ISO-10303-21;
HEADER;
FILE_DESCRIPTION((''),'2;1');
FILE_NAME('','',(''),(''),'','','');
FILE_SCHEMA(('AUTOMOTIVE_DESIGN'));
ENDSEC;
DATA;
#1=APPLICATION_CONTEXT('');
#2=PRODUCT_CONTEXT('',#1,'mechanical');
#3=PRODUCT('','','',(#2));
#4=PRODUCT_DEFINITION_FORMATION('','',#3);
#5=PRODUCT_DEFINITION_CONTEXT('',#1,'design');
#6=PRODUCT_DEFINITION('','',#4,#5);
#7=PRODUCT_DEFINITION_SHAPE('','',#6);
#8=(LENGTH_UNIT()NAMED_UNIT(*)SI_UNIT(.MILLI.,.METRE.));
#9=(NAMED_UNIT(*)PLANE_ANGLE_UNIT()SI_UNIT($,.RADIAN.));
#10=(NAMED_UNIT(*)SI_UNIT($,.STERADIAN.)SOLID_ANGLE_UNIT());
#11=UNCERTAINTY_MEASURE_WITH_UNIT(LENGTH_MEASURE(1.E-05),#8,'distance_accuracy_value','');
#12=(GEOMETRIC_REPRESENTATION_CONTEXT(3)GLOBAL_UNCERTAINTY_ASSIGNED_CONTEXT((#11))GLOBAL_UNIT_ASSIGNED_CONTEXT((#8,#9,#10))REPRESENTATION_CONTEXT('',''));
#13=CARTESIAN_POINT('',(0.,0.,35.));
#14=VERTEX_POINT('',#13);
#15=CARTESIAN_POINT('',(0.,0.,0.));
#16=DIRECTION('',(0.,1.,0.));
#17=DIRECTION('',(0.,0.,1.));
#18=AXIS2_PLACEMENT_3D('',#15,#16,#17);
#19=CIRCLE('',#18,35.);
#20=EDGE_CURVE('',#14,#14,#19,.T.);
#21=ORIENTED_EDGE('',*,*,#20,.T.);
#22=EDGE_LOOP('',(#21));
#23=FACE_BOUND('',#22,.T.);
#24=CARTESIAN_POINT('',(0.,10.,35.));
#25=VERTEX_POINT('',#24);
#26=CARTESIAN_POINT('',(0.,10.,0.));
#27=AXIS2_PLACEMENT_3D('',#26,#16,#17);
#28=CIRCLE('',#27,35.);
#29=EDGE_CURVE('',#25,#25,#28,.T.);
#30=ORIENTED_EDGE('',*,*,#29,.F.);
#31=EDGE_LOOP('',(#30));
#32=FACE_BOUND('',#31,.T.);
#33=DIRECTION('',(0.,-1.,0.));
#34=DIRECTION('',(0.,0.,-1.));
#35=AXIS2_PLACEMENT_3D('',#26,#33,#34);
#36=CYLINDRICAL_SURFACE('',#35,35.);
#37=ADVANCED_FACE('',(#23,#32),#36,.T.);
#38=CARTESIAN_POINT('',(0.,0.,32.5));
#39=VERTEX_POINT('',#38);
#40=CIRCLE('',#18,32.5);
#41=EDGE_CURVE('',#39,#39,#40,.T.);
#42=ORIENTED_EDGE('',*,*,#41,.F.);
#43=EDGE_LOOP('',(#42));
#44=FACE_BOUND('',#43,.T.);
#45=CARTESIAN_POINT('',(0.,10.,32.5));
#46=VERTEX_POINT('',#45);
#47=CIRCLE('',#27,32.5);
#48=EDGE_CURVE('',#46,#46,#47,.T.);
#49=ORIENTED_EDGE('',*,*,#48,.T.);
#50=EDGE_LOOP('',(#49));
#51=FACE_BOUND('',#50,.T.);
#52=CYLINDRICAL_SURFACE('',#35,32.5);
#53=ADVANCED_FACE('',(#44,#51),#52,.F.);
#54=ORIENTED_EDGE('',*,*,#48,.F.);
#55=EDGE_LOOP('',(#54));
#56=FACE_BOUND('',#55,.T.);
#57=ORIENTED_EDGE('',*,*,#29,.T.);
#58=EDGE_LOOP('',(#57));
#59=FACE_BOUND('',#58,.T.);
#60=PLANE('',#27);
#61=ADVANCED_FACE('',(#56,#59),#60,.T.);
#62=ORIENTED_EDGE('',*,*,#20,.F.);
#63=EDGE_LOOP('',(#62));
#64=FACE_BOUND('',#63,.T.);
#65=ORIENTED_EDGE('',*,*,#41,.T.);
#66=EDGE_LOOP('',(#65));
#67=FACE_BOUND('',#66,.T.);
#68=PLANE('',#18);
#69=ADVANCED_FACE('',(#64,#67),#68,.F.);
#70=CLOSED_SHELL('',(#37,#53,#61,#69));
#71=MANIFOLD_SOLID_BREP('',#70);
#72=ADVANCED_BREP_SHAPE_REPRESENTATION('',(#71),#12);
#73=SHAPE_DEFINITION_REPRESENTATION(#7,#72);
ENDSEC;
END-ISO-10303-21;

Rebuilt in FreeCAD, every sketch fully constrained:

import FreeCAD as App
import Part
import Sketcher
Q = App.Units.Quantity

doc = App.newDocument("Part")
body = doc.addObject("PartDesign::Body", "Body")

sketch1 = body.newObject("Sketcher::SketchObject", "Sketch")
sketch1.AttachmentSupport = (doc.getObject("XZ_Plane"), [""])
sketch1.MapMode = "FlatFace"
sketch1.addGeometry(Part.Circle(App.Vector(0, 0, 0), App.Vector(0, 0, 1), 35), False)
sketch1.addGeometry(Part.Circle(App.Vector(0, 0, 0), App.Vector(0, 0, 1), 32), False)
sketch1.addConstraint(Sketcher.Constraint("Coincident", 0, 3, -1, 1))
sketch1.addConstraint(Sketcher.Constraint("Coincident", 1, 3, -1, 1))
sketch1.addConstraint(Sketcher.Constraint("Diameter", 0, Q("70 mm")))
sketch1.addConstraint(Sketcher.Constraint("Diameter", 1, Q("65 mm")))
pad1 = body.newObject("PartDesign::Pad", "Pad")
pad1.Profile = sketch1
pad1.Length = 10
pad1.Reversed = True

doc.recompute()
